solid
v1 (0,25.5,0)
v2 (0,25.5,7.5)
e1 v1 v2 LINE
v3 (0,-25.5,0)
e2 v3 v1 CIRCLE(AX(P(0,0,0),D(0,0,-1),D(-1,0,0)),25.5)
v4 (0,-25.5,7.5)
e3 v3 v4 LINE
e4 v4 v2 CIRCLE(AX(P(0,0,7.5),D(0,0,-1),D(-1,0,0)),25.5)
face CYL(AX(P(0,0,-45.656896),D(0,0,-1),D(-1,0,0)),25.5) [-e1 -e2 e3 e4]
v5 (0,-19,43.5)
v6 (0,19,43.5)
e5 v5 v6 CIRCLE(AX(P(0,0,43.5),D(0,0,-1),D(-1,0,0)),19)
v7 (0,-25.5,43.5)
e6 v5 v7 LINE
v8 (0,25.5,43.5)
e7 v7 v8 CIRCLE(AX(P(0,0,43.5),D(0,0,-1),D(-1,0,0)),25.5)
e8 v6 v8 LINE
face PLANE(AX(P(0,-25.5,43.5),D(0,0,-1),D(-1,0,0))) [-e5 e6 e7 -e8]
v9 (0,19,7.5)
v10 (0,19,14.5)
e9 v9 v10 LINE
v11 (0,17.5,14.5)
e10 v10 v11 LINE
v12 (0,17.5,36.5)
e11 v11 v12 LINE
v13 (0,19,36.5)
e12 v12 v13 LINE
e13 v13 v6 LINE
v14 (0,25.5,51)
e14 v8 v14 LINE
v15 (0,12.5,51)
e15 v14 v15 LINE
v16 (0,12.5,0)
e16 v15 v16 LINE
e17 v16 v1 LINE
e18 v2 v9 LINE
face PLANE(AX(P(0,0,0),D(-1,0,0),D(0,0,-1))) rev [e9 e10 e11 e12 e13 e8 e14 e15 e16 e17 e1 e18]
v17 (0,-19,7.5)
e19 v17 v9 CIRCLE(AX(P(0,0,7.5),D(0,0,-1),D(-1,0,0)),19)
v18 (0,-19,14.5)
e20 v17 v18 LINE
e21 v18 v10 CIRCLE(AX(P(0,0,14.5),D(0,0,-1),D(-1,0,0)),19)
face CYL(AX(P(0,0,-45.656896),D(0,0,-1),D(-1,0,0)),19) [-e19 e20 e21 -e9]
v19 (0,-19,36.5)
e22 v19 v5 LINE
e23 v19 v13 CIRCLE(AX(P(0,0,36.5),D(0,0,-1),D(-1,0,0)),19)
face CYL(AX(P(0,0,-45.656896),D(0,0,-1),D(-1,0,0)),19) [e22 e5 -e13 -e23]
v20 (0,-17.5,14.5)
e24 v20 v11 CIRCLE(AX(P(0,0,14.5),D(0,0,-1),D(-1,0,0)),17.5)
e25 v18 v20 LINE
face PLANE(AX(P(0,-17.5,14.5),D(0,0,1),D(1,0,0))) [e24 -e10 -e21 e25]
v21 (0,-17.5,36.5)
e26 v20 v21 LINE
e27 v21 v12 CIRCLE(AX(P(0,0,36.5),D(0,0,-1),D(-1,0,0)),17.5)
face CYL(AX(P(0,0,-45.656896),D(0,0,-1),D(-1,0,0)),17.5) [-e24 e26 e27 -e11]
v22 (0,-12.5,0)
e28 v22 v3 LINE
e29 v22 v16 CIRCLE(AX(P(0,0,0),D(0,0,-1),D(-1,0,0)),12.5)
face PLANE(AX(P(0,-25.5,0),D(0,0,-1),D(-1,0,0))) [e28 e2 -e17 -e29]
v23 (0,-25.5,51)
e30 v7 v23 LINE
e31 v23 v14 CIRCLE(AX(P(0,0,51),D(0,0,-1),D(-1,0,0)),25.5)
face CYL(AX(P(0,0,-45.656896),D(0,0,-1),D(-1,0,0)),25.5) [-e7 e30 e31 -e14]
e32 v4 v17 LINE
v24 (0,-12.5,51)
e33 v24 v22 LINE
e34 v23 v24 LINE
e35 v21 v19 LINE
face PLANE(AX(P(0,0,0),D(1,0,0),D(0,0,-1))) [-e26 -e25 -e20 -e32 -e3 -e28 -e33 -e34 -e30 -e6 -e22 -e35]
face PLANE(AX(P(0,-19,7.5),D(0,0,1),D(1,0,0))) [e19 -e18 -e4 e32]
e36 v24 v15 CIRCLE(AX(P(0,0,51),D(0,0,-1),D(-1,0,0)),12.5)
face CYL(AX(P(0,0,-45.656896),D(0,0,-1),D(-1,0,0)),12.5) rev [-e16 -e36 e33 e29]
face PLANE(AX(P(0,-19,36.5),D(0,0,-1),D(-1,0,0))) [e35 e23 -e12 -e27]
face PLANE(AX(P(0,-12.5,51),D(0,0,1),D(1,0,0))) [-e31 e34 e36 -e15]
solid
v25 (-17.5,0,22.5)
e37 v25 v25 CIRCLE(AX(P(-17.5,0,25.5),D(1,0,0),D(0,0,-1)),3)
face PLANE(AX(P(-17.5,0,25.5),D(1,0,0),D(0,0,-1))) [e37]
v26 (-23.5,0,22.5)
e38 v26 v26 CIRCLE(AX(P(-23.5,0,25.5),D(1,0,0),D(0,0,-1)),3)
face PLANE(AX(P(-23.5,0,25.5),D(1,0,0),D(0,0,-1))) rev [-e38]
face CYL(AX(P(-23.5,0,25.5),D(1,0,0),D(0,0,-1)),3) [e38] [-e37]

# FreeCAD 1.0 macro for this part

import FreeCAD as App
import Part
import Sketcher
from FreeCAD import Vector
Q = App.Units.Quantity


def add_polygon(sketch, points):
    """Adds a closed chain of lines whose ends are joined by coincident constraints."""
    first, n = sketch.GeometryCount, len(points)
    for a, b in zip(points, points[1:] + points[:1]):
        sketch.addGeometry(Part.LineSegment(App.Vector(*a, 0), App.Vector(*b, 0)), False)
    for i in range(n):
        sketch.addConstraint(Sketcher.Constraint("Coincident", first + i, 2, first + (i + 1) % n, 1))

doc = App.newDocument("Part")
body = doc.addObject("PartDesign::Body", "Body")

# Sketch on XZ plane
sketch1 = body.newObject("Sketcher::SketchObject", "Sketch")
sketch1.AttachmentSupport = (doc.getObject("XZ_Plane"), [""])
sketch1.MapMode = "FlatFace"
add_polygon(sketch1, [(-12.5, 51), (-12.5, 0), (-25.5, 0), (-25.5, 7.5), (-19, 7.5), (-19, 14.5), (-17.5, 14.5), (-17.5, 36.5), (-19, 36.5), (-19, 43.5), (-25.5, 43.5), (-25.5, 51)])  # lines 0-11
sketch1.addConstraint([
    Sketcher.Constraint("Vertical", 0),
    Sketcher.Constraint("Horizontal", 1),
    Sketcher.Constraint("Vertical", 2),
    Sketcher.Constraint("Horizontal", 3),
    Sketcher.Constraint("Vertical", 4),
    Sketcher.Constraint("Horizontal", 5),
    Sketcher.Constraint("Vertical", 6),
    Sketcher.Constraint("Horizontal", 7),
    Sketcher.Constraint("Vertical", 8),
    Sketcher.Constraint("Horizontal", 9),
    Sketcher.Constraint("Vertical", 10),
    Sketcher.Constraint("Horizontal", 11),
    Sketcher.Constraint("PointOnObject", 0, 2, -1),
    Sketcher.Constraint("Vertical", 4, 2, 7, 2),
    Sketcher.Constraint("Vertical", 2, 2, 9, 2),
    Sketcher.Constraint("Equal", 4, 8),
    Sketcher.Constraint("Equal", 2, 10),
    Sketcher.Constraint("DistanceX", 1, 2, 1, 1, Q("13 mm")),
    Sketcher.Constraint("DistanceY", 0, 2, 0, 1, Q("51 mm")),
    Sketcher.Constraint("DistanceY", 4, 1, 4, 2, Q("7 mm")),
    Sketcher.Constraint("DistanceY", 6, 1, 6, 2, Q("22 mm")),
    Sketcher.Constraint("DistanceX", 3, 1, 3, 2, Q("6.5 mm")),
    Sketcher.Constraint("DistanceX", 5, 1, 5, 2, Q("1.5 mm")),
    Sketcher.Constraint("DistanceX", 3, 2, -1, 1, Q("19 mm")),
])
revolution = body.newObject("PartDesign::Revolution", "Revolution")
revolution.Profile = sketch1
revolution.ReferenceAxis = (sketch1, ["V_Axis"])
revolution.Angle = 90

# Sketch on XZ plane
sketch2 = body.newObject("Sketcher::SketchObject", "Sketch001")
sketch2.AttachmentSupport = (doc.getObject("XZ_Plane"), [""])
sketch2.MapMode = "FlatFace"
add_polygon(sketch2, [(-12.5, 51), (-12.5, 0), (-25.5, 0), (-25.5, 7.5), (-19, 7.5), (-19, 14.5), (-17.5, 14.5), (-17.5, 36.5), (-19, 36.5), (-19, 43.5), (-25.5, 43.5), (-25.5, 51)])  # lines 0-11
sketch2.addConstraint([
    Sketcher.Constraint("Vertical", 0),
    Sketcher.Constraint("Horizontal", 1),
    Sketcher.Constraint("Vertical", 2),
    Sketcher.Constraint("Horizontal", 3),
    Sketcher.Constraint("Vertical", 4),
    Sketcher.Constraint("Horizontal", 5),
    Sketcher.Constraint("Vertical", 6),
    Sketcher.Constraint("Horizontal", 7),
    Sketcher.Constraint("Vertical", 8),
    Sketcher.Constraint("Horizontal", 9),
    Sketcher.Constraint("Vertical", 10),
    Sketcher.Constraint("Horizontal", 11),
    Sketcher.Constraint("PointOnObject", 0, 2, -1),
    Sketcher.Constraint("Vertical", 4, 2, 7, 2),
    Sketcher.Constraint("Vertical", 2, 2, 9, 2),
    Sketcher.Constraint("Equal", 4, 8),
    Sketcher.Constraint("Equal", 2, 10),
    Sketcher.Constraint("DistanceX", 1, 2, 1, 1, Q("13 mm")),
    Sketcher.Constraint("DistanceY", 0, 2, 0, 1, Q("51 mm")),
    Sketcher.Constraint("DistanceY", 4, 1, 4, 2, Q("7 mm")),
    Sketcher.Constraint("DistanceY", 6, 1, 6, 2, Q("22 mm")),
    Sketcher.Constraint("DistanceX", 3, 1, 3, 2, Q("6.5 mm")),
    Sketcher.Constraint("DistanceX", 5, 1, 5, 2, Q("1.5 mm")),
    Sketcher.Constraint("DistanceX", 3, 2, -1, 1, Q("19 mm")),
])
revolution2 = body.newObject("PartDesign::Revolution", "Revolution001")
revolution2.Profile = sketch2
revolution2.ReferenceAxis = (sketch2, ["V_Axis"])
revolution2.Angle = 90
revolution2.Reversed = True
body2 = doc.addObject("PartDesign::Body", "Body001")

# Sketch on YZ plane
sketch3 = body2.newObject("Sketcher::SketchObject", "Sketch002")
sketch3.AttachmentSupport = (doc.getObject("YZ_Plane001"), [""])
sketch3.MapMode = "FlatFace"
sketch3.AttachmentOffset = App.Placement(Vector(0, 0, -17.5), App.Rotation())
sketch3.addGeometry(Part.Circle(Vector(0, 25.5, 0), Vector(0, 0, 1), 3), False)
sketch3.addConstraint([
    Sketcher.Constraint("PointOnObject", 0, 3, -2),
    Sketcher.Constraint("Diameter", 0, Q("6 mm")),
    Sketcher.Constraint("DistanceY", -1, 1, 0, 3, Q("25.5 mm")),
])
pad1 = body2.newObject("PartDesign::Pad", "Pad")
pad1.Profile = sketch3
pad1.Length = 6
pad1.Reversed = True

doc.recompute()
